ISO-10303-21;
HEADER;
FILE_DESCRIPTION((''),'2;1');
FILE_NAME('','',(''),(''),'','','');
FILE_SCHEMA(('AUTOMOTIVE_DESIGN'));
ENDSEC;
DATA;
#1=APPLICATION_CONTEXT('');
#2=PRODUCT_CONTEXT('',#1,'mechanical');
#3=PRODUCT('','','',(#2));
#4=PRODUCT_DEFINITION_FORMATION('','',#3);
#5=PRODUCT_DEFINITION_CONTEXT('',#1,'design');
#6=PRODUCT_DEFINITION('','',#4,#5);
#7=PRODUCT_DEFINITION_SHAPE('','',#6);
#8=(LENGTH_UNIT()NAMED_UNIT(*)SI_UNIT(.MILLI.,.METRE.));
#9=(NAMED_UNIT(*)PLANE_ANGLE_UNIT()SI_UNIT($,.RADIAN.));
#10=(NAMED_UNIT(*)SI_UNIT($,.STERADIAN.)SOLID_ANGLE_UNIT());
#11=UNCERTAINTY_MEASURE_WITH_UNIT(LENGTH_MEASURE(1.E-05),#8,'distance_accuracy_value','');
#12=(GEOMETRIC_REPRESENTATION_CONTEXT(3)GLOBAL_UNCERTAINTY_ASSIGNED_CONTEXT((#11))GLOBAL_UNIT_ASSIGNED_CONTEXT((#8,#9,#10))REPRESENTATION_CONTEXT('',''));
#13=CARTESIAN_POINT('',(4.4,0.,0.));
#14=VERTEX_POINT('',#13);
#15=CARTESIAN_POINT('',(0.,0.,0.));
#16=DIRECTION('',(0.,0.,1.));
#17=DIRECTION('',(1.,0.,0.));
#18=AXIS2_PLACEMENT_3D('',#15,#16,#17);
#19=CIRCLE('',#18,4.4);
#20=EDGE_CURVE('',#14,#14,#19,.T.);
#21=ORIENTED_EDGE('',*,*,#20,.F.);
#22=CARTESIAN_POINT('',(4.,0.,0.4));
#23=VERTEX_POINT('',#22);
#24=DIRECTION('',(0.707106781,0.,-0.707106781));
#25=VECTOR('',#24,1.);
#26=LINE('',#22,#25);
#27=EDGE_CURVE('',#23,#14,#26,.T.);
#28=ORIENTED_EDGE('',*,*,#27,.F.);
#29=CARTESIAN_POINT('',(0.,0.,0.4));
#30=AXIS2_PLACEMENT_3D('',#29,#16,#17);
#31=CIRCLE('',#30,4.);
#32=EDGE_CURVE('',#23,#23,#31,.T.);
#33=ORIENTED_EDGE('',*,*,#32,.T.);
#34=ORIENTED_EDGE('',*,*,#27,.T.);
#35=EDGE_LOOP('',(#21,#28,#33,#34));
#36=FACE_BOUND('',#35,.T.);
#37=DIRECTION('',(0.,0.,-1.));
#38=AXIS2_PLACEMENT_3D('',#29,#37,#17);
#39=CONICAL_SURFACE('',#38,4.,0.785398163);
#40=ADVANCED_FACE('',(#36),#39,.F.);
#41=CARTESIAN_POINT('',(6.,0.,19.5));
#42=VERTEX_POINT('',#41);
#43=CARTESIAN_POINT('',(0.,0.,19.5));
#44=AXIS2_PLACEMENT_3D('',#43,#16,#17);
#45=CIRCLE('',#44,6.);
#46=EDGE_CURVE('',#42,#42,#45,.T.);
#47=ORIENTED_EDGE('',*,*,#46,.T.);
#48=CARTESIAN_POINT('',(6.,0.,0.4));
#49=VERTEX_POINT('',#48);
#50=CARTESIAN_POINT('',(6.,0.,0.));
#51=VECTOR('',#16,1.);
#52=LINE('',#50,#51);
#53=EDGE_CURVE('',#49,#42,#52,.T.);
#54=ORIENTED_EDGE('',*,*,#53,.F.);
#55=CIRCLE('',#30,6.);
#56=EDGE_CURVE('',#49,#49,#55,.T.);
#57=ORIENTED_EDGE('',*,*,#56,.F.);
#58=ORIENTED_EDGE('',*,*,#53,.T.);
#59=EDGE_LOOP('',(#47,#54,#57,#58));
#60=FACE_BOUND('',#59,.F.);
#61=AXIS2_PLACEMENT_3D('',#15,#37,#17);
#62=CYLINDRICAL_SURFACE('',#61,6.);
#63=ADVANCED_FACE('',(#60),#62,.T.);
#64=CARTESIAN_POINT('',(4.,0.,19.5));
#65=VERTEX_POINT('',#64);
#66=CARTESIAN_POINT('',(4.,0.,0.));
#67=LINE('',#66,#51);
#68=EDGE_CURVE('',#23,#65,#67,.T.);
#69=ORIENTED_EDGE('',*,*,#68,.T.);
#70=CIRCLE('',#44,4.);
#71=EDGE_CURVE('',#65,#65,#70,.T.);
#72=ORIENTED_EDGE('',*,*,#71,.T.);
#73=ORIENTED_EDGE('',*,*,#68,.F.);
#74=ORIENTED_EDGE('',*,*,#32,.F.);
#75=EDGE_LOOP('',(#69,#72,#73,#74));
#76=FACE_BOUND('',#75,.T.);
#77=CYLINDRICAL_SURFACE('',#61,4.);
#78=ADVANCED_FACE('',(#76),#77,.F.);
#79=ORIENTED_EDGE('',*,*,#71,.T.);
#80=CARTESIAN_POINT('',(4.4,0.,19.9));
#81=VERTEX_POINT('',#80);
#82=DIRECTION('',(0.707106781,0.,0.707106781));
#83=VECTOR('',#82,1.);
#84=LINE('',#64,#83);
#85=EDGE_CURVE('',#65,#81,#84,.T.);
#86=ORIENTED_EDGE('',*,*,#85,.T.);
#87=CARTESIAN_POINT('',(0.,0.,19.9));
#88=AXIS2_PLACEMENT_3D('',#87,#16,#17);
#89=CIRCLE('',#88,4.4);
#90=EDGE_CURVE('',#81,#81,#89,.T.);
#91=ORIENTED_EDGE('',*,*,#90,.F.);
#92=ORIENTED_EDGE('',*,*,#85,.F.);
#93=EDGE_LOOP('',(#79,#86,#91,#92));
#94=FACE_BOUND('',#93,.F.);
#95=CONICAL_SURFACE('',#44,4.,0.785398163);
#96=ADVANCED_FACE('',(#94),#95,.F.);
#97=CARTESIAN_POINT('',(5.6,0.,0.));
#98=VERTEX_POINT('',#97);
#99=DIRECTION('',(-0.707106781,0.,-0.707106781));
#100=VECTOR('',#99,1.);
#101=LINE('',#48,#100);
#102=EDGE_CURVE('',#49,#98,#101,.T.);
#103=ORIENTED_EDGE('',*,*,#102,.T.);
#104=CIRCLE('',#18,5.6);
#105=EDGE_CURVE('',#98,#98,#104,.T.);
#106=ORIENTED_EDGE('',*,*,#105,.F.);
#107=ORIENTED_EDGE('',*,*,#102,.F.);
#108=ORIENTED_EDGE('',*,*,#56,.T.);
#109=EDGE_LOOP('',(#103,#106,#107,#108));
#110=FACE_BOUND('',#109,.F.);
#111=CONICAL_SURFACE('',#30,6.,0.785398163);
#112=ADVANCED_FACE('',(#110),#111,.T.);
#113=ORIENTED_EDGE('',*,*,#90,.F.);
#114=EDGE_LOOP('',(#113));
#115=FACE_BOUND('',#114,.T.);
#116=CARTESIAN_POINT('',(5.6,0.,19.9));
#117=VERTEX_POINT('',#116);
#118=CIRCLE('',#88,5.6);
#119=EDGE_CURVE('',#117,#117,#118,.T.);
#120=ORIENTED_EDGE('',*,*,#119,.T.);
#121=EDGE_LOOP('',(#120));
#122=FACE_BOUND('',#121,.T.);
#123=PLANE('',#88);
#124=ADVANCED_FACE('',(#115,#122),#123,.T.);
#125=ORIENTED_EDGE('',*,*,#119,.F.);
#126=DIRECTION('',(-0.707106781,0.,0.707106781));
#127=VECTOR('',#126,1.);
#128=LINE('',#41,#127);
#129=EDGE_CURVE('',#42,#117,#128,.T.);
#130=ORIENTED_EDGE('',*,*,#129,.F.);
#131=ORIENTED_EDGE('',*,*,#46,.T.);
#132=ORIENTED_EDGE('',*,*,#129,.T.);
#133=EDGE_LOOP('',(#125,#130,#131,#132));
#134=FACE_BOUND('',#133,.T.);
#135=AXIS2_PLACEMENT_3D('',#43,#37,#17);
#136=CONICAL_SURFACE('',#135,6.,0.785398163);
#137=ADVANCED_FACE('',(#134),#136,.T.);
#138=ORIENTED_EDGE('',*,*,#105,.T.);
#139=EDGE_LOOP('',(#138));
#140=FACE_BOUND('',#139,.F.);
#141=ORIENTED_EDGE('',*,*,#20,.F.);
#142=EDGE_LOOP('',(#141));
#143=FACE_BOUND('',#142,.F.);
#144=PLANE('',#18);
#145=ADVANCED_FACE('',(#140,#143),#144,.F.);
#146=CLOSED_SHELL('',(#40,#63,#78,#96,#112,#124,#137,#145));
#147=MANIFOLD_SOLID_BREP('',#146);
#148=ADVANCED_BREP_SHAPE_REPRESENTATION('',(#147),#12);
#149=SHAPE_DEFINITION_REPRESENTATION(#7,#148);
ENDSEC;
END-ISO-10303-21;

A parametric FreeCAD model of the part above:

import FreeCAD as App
import Part
import Sketcher
Q = App.Units.Quantity


def edges_at(feature, points):
    """Names of the edges that pass closest to the given points."""
    edges = feature.Shape.Edges
    near = lambda p: min(range(len(edges)), key=lambda i: edges[i].distToShape(Part.Vertex(*p))[0])
    return sorted({f"Edge{near(p) + 1}" for p in points})

doc = App.newDocument("Part")
body = doc.addObject("PartDesign::Body", "Body")

# Sketch on XY plane
sketch1 = body.newObject("Sketcher::SketchObject", "Sketch")
sketch1.AttachmentSupport = (doc.getObject("XY_Plane"), [""])
sketch1.MapMode = "FlatFace"
sketch1.addGeometry(Part.Circle(App.Vector(0, 0, 0), App.Vector(0, 0, 1), 6), False)
sketch1.addGeometry(Part.Circle(App.Vector(0, 0, 0), App.Vector(0, 0, 1), 4), False)
sketch1.addConstraint(Sketcher.Constraint("Coincident", 0, 3, -1, 1))
sketch1.addConstraint(Sketcher.Constraint("Coincident", 1, 3, -1, 1))
sketch1.addConstraint(Sketcher.Constraint("Diameter", 0, Q("12 mm")))
sketch1.addConstraint(Sketcher.Constraint("Diameter", 1, Q("8 mm")))
pad1 = body.newObject("PartDesign::Pad", "Pad")
pad1.Profile = sketch1
pad1.Length = 19.9
doc.recompute()

chamfer = body.newObject("PartDesign::Chamfer", "Chamfer")
chamfer.Base = (pad1, edges_at(pad1, [
    (-6, 0, 19.9),
    (-4, 0, 19.9),
    (-6, 0, 0),
    (-4, 0, 0),
]))
chamfer.Size = 0.4

doc.recompute()
